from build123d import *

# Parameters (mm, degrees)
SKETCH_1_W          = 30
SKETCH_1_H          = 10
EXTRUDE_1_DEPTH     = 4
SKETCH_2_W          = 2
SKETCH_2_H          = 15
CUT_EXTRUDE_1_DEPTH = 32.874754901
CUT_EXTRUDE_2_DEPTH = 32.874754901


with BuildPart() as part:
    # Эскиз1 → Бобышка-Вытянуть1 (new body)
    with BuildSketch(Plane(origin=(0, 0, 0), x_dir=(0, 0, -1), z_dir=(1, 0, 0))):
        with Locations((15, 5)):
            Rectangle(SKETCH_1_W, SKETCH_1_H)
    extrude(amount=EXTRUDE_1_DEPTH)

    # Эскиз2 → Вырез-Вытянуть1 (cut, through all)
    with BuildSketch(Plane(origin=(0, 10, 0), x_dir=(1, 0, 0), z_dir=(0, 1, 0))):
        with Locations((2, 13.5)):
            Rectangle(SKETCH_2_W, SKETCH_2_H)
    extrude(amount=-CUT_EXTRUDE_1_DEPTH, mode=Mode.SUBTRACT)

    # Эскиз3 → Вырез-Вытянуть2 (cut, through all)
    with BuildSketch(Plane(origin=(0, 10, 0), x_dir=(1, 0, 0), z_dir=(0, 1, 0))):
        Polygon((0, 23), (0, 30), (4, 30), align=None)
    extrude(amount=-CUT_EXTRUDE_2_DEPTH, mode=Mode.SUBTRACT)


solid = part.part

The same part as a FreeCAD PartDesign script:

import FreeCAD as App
import Part
import Sketcher

V = App.Vector


def add_polygon(sketch, points):
    """Adds a closed chain of lines whose ends are joined by coincident constraints."""
    first, n = sketch.GeometryCount, len(points)
    for a, b in zip(points, points[1:] + points[:1]):
        sketch.addGeometry(Part.LineSegment(App.Vector(*a, 0), App.Vector(*b, 0)), False)
    for i in range(n):
        sketch.addConstraint(Sketcher.Constraint("Coincident", first + i, 2, first + (i + 1) % n, 1))

doc = App.newDocument("Part")
body = doc.addObject("PartDesign::Body", "Body")

sketch1 = body.newObject("Sketcher::SketchObject", "Sketch")
sketch1.AttachmentSupport = (doc.getObject("YZ_Plane"), [""])
sketch1.MapMode = "FlatFace"
add_polygon(sketch1, [(10, 0), (0, 0), (0, -30), (10, -30)])
sketch1.addConstraint([
    Sketcher.Constraint("Horizontal", 0),
    Sketcher.Constraint("Vertical", 1),
    Sketcher.Constraint("Horizontal", 2),
    Sketcher.Constraint("Vertical", 3),
    Sketcher.Constraint("Coincident", 0, 2, -1, 1),
    Sketcher.Constraint("DistanceX", 0, 2, 0, 1, 10.0),
    Sketcher.Constraint("DistanceY", 1, 2, 1, 1, 30.0),
])
pad1 = body.newObject("PartDesign::Pad", "Pad")
pad1.Profile = sketch1
pad1.Length = 4

sketch2 = body.newObject("Sketcher::SketchObject", "Sketch001")
sketch2.AttachmentSupport = (doc.getObject("XZ_Plane"), [""])
sketch2.MapMode = "FlatFace"
sketch2.AttachmentOffset = App.Placement(V(0, 0, -10), App.Rotation())
add_polygon(sketch2, [(1, -21), (1, -6), (3, -6), (3, -21)])
sketch2.addConstraint([
    Sketcher.Constraint("Vertical", 0),
    Sketcher.Constraint("Horizontal", 1),
    Sketcher.Constraint("Vertical", 2),
    Sketcher.Constraint("Horizontal", 3),
    Sketcher.Constraint("DistanceX", 1, 1, 1, 2, 2.0),
    Sketcher.Constraint("DistanceY", 0, 1, 0, 2, 15.0),
    Sketcher.Constraint("DistanceX", -1, 1, 0, 2, 1.0),
    Sketcher.Constraint("DistanceY", 0, 2, -1, 1, 6.0),
])
pocket1 = body.newObject("PartDesign::Pocket", "Pocket")
pocket1.Profile = sketch2
pocket1.Type = "ThroughAll"
pocket1.Reversed = True

sketch3 = body.newObject("Sketcher::SketchObject", "Sketch002")
sketch3.AttachmentSupport = (doc.getObject("XZ_Plane"), [""])
sketch3.MapMode = "FlatFace"
sketch3.AttachmentOffset = App.Placement(V(0, 0, -10), App.Rotation())
add_polygon(sketch3, [(0, -30), (0, -23), (4, -30)])
sketch3.addConstraint([
    Sketcher.Constraint("Vertical", 0),
    Sketcher.Constraint("Horizontal", 2),
    Sketcher.Constraint("PointOnObject", 0, 2, -2),
    Sketcher.Constraint("DistanceX", 2, 2, 2, 1, 4.0),
    Sketcher.Constraint("DistanceY", 0, 1, 0, 2, 7.0),
    Sketcher.Constraint("DistanceY", 0, 2, -1, 1, 23.0),
])
pocket2 = body.newObject("PartDesign::Pocket", "Pocket001")
pocket2.Profile = sketch3
pocket2.Type = "ThroughAll"
pocket2.Reversed = True

doc.recompute()
